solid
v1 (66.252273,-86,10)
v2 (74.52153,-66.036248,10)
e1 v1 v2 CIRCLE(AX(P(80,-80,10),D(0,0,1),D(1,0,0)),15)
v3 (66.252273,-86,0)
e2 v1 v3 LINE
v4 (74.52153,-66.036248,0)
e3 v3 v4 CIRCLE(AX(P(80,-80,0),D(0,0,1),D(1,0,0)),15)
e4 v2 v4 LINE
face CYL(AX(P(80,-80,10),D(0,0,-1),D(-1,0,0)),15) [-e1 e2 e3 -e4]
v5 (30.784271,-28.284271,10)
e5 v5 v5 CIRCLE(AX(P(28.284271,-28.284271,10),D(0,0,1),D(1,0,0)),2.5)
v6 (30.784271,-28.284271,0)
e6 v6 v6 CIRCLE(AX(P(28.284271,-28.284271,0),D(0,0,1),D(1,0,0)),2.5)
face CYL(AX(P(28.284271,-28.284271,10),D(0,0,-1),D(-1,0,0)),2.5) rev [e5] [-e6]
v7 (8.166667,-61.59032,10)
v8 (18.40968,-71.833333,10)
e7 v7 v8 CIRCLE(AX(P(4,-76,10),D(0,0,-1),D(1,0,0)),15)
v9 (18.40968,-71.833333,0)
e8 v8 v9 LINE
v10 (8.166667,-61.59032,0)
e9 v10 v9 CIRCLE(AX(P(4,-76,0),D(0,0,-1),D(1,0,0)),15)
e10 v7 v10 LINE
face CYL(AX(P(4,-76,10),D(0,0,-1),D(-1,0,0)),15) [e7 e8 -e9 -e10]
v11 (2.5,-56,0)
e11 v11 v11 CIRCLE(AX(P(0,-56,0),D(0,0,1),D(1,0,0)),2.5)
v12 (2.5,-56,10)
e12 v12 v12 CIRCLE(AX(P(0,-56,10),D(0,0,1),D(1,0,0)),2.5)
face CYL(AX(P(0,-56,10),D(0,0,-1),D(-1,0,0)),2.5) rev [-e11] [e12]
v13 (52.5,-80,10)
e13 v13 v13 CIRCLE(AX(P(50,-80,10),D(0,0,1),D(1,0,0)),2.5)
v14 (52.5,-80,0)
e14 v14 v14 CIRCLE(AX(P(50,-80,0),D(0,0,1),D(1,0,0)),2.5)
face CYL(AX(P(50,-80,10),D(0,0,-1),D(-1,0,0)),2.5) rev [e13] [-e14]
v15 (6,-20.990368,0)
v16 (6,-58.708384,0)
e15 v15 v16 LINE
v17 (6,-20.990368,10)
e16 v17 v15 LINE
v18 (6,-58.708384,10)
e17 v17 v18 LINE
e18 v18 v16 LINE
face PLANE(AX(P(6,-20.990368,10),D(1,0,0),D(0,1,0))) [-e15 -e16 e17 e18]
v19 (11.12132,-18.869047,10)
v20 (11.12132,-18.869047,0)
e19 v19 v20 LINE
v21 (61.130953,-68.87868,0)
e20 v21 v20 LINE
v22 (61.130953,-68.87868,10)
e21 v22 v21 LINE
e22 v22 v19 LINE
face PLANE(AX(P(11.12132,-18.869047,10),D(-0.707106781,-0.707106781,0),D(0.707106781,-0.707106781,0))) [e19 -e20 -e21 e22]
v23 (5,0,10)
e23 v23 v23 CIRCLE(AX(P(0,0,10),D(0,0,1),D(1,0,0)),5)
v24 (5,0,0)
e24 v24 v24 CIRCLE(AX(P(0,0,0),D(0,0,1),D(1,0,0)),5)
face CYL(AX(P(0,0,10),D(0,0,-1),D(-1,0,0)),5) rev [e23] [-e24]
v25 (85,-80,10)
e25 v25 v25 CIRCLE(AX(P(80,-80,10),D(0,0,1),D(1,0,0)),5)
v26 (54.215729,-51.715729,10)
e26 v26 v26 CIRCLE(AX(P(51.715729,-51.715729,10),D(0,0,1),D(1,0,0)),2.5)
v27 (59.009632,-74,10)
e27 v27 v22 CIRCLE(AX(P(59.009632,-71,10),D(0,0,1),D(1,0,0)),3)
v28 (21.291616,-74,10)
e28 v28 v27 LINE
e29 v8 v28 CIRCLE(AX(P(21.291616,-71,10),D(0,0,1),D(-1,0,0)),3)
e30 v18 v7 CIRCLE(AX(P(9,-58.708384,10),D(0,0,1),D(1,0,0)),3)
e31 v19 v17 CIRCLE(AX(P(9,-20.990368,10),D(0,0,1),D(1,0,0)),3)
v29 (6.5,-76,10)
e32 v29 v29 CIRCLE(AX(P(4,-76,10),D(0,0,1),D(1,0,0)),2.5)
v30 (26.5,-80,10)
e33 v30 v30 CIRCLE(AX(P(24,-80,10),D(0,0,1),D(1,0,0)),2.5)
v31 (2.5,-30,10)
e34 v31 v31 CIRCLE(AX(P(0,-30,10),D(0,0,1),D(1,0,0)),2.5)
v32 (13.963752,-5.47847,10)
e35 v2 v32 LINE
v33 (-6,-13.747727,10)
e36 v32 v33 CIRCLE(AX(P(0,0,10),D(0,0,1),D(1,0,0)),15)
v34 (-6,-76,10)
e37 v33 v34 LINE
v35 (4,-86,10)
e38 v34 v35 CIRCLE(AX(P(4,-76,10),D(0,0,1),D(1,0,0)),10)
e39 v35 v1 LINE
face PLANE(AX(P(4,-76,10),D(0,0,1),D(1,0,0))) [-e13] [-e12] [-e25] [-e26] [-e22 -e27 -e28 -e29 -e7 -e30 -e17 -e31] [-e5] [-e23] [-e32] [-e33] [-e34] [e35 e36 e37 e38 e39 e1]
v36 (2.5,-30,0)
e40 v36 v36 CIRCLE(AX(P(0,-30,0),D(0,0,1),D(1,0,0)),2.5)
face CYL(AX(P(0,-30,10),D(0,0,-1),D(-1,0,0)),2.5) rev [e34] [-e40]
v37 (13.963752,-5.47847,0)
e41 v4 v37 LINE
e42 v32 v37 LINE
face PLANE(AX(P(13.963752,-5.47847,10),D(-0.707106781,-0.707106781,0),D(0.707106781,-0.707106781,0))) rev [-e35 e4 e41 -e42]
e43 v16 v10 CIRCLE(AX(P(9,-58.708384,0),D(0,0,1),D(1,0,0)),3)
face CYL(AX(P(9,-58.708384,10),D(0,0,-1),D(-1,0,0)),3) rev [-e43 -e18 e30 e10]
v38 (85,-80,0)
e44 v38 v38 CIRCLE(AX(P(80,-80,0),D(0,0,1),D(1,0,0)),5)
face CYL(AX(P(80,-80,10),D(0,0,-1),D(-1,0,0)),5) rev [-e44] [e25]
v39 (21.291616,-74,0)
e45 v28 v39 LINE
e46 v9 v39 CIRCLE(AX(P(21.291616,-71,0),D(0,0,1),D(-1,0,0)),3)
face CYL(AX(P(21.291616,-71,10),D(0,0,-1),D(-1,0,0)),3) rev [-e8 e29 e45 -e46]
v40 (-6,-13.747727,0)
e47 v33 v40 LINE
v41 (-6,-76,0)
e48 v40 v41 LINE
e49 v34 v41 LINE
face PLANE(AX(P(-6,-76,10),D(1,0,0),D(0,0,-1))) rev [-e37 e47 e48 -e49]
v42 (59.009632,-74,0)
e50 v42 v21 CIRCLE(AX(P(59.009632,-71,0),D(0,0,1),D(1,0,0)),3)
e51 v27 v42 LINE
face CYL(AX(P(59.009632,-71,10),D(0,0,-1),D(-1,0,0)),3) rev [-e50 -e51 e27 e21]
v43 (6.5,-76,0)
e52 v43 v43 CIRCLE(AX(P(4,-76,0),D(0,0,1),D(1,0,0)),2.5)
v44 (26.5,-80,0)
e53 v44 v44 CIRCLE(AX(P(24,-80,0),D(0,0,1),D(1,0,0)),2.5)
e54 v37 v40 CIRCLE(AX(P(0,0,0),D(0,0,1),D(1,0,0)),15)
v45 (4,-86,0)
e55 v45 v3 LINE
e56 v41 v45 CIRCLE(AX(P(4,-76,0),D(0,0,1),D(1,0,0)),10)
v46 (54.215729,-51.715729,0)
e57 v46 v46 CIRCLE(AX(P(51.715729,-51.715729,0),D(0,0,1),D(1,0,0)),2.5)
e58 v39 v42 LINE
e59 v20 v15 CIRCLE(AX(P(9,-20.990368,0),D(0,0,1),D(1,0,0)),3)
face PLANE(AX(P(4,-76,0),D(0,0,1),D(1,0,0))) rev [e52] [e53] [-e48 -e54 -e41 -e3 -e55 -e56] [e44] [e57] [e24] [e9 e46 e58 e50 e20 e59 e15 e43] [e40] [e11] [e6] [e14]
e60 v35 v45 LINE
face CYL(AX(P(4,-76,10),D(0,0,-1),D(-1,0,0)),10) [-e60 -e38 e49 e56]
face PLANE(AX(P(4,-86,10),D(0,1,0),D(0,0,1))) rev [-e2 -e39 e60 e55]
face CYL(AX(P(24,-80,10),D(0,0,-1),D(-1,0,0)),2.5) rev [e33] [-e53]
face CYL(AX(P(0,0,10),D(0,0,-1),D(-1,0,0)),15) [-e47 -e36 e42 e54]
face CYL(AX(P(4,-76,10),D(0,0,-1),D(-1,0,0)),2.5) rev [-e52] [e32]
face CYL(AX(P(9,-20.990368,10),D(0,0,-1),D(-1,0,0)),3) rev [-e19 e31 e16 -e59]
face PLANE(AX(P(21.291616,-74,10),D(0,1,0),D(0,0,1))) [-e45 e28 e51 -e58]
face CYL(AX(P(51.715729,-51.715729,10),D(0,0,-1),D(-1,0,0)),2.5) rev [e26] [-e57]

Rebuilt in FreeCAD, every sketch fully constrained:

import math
import FreeCAD as App
import Part
import Sketcher

V = App.Vector
Q = App.Units.Quantity

doc = App.newDocument("Part")
params = doc.addObject("Spreadsheet::Sheet", "Params")
for row, (alias, value) in enumerate([
    ("sketch1_diameter", "10 mm"),
    ("sketch1_diameter2", "5 mm"),
    ("sketch1_radius", "10 mm"),
    ("sketch1_radius2", "15 mm"),
    ("sketch1_radius3", "3 mm"),
    ("pad1_length", "10 mm"),
], start=1):
    params.set(f"A{row}", alias)
    params.set(f"B{row}", "=" + value)
    params.setAlias(f"B{row}", alias)

body = doc.addObject("PartDesign::Body", "Body")

# Sketch on XY plane
sketch1 = body.newObject("Sketcher::SketchObject", "Sketch")
sketch1.AttachmentSupport = (doc.getObject("XY_Plane"), [""])
sketch1.MapMode = "FlatFace"
sketch1.addGeometry([
    Part.LineSegment(V(-6, -13.747727, 0), V(-6, -76, 0)),  # 0
    Part.ArcOfCircle(Part.Circle(V(4, -76, 0), V(0, 0, 1), 10), math.radians(180), math.radians(270)),  # 1
    Part.LineSegment(V(4, -86, 0), V(66.252273, -86, 0)),  # 2
    Part.ArcOfCircle(Part.Circle(V(80, -80, 0), V(0, 0, 1), 15), math.radians(-156.421822), math.radians(111.421822)),  # 3
    Part.LineSegment(V(74.52153, -66.036248, 0), V(13.963752, -5.47847, 0)),  # 4
    Part.ArcOfCircle(Part.Circle(V(0, 0, 0), V(0, 0, 1), 15), math.radians(-21.421822), math.radians(246.421822)),  # 5
    Part.Circle(V(80, -80, 0), V(0, 0, 1), 5),  # 6
    Part.Circle(V(50, -80, 0), V(0, 0, 1), 2.5),  # 7
    Part.Circle(V(51.715729, -51.715729, 0), V(0, 0, 1), 2.5),  # 8
    Part.Circle(V(24, -80, 0), V(0, 0, 1), 2.5),  # 9
    Part.Circle(V(4, -76, 0), V(0, 0, 1), 2.5),  # 10
    Part.ArcOfCircle(Part.Circle(V(21.291616, -71, 0), V(0, 0, 1), 3), math.radians(-163.87238), math.radians(-90)),  # 11
    Part.ArcOfCircle(Part.Circle(V(4, -76, 0), V(0, 0, 1), 15), math.radians(16.12762), math.radians(73.87238)),  # 12
    Part.ArcOfCircle(Part.Circle(V(9, -58.708384, 0), V(0, 0, 1), 3), math.radians(180), math.radians(253.87238)),  # 13
    Part.LineSegment(V(6, -58.708384, 0), V(6, -20.990368, 0)),  # 14
    Part.ArcOfCircle(Part.Circle(V(9, -20.990368, 0), V(0, 0, 1), 3), math.radians(45), math.radians(180)),  # 15
    Part.LineSegment(V(11.12132, -18.869047, 0), V(61.130953, -68.87868, 0)),  # 16
    Part.ArcOfCircle(Part.Circle(V(59.009632, -71, 0), V(0, 0, 1), 3), math.radians(-90), math.radians(45)),  # 17
    Part.LineSegment(V(59.009632, -74, 0), V(21.291616, -74, 0)),  # 18
    Part.Circle(V(0, -56, 0), V(0, 0, 1), 2.5),  # 19
    Part.Circle(V(28.284271, -28.284271, 0), V(0, 0, 1), 2.5),  # 20
    Part.Circle(V(0, -30, 0), V(0, 0, 1), 2.5),  # 21
    Part.Circle(V(0, 0, 0), V(0, 0, 1), 5),  # 22
], False)
sketch1.addConstraint([
    Sketcher.Constraint("Tangent", 0, 2, 1, 1),
    Sketcher.Constraint("Tangent", 1, 2, 2, 1),
    Sketcher.Constraint("Coincident", 2, 2, 3, 1),
    Sketcher.Constraint("Coincident", 3, 2, 4, 1),
    Sketcher.Constraint("Coincident", 4, 2, 5, 1),
    Sketcher.Constraint("Coincident", 5, 2, 0, 1),
    Sketcher.Constraint("Tangent", 11, 1, 12, 1),
    Sketcher.Constraint("Tangent", 12, 2, 13, 2),
    Sketcher.Constraint("Tangent", 13, 1, 14, 1),
    Sketcher.Constraint("Tangent", 14, 2, 15, 2),
    Sketcher.Constraint("Tangent", 15, 1, 16, 1),
    Sketcher.Constraint("Tangent", 16, 2, 17, 2),
    Sketcher.Constraint("Tangent", 17, 1, 18, 1),
    Sketcher.Constraint("Tangent", 18, 2, 11, 2),
    Sketcher.Constraint("Vertical", 0),
    Sketcher.Constraint("Horizontal", 2),
    Sketcher.Constraint("Vertical", 14),
    Sketcher.Constraint("Horizontal", 18),
    Sketcher.Constraint("Coincident", 5, 3, -1, 1),
    Sketcher.Constraint("Coincident", 22, 3, -1, 1),
    Sketcher.Constraint("Coincident", 6, 3, 3, 3),
    Sketcher.Constraint("Coincident", 10, 3, 1, 3),
    Sketcher.Constraint("Coincident", 12, 3, 1, 3),
    Sketcher.Constraint("Equal", 3, 5),
    Sketcher.Constraint("Equal", 7, 8),
    Sketcher.Constraint("Equal", 8, 9),
    Sketcher.Constraint("Equal", 9, 10),
    Sketcher.Constraint("Equal", 5, 12),
    Sketcher.Constraint("Equal", 11, 13),
    Sketcher.Constraint("Equal", 13, 15),
    Sketcher.Constraint("Equal", 15, 17),
    Sketcher.Constraint("Equal", 10, 19),
    Sketcher.Constraint("Equal", 19, 20),
    Sketcher.Constraint("Equal", 20, 21),
    Sketcher.Constraint("Equal", 6, 22),
    Sketcher.Constraint("PointOnObject", 19, 3, -2),
    Sketcher.Constraint("PointOnObject", 21, 3, -2),
    Sketcher.Constraint("Parallel", 4, 16),
    Sketcher.Constraint("Horizontal", 6, 3, 7, 3),
    Sketcher.Constraint("Horizontal", 7, 3, 9, 3),
    Sketcher.Constraint("Equal", 2, 0),
    Sketcher.Constraint("Equal", 18, 14),
    Sketcher.Constraint("Diameter", 6, Q("10 mm")),
    Sketcher.Constraint("Diameter", 7, Q("5 mm")),
    Sketcher.Constraint("Radius", 1, Q("10 mm")),
    Sketcher.Constraint("Radius", 3, Q("15 mm")),
    Sketcher.Constraint("Radius", 11, Q("3 mm")),
    Sketcher.Constraint("Angle", 4, Q("135 deg")),
    Sketcher.Constraint("DistanceX", -1, 1, 1, 3, Q("4 mm")),
    Sketcher.Constraint("DistanceY", 1, 3, -1, 1, Q("76 mm")),
    Sketcher.Constraint("DistanceX", -1, 1, 3, 3, Q("80 mm")),
    Sketcher.Constraint("DistanceX", -1, 1, 7, 3, Q("50 mm")),
    Sketcher.Constraint("DistanceX", -1, 1, 9, 3, Q("24 mm")),
    Sketcher.Constraint("DistanceY", 11, 3, -1, 1, Q("71 mm")),
    Sketcher.Constraint("DistanceY", 19, 3, -1, 1, Q("56 mm")),
    Sketcher.Constraint("DistanceY", 21, 3, -1, 1, Q("30 mm")),
    Sketcher.Constraint("Distance", 16, Q("70.7243 mm")),
    Sketcher.Constraint("DistanceX", 8, 3, 3, 2, Q("22.805801 mm")),
    Sketcher.Constraint("DistanceY", 20, 3, 4, 2, Q("22.805801 mm")),
    Sketcher.Constraint("Distance", 4, Q("85.641631 mm")),
    Sketcher.Constraint("DistanceY", 8, 3, -1, 1, Q("51.715729 mm")),
    Sketcher.Constraint("DistanceX", -1, 1, 20, 3, Q("28.284271 mm")),
])
sketch1.setExpression("Constraints[42]", "Params.sketch1_diameter")
sketch1.setExpression("Constraints[43]", "Params.sketch1_diameter2")
sketch1.setExpression("Constraints[44]", "Params.sketch1_radius")
sketch1.setExpression("Constraints[45]", "Params.sketch1_radius2")
sketch1.setExpression("Constraints[46]", "Params.sketch1_radius3")
pad1 = body.newObject("PartDesign::Pad", "Pad")
pad1.Profile = sketch1
pad1.setExpression("Length", "Params.pad1_length")

doc.recompute()
